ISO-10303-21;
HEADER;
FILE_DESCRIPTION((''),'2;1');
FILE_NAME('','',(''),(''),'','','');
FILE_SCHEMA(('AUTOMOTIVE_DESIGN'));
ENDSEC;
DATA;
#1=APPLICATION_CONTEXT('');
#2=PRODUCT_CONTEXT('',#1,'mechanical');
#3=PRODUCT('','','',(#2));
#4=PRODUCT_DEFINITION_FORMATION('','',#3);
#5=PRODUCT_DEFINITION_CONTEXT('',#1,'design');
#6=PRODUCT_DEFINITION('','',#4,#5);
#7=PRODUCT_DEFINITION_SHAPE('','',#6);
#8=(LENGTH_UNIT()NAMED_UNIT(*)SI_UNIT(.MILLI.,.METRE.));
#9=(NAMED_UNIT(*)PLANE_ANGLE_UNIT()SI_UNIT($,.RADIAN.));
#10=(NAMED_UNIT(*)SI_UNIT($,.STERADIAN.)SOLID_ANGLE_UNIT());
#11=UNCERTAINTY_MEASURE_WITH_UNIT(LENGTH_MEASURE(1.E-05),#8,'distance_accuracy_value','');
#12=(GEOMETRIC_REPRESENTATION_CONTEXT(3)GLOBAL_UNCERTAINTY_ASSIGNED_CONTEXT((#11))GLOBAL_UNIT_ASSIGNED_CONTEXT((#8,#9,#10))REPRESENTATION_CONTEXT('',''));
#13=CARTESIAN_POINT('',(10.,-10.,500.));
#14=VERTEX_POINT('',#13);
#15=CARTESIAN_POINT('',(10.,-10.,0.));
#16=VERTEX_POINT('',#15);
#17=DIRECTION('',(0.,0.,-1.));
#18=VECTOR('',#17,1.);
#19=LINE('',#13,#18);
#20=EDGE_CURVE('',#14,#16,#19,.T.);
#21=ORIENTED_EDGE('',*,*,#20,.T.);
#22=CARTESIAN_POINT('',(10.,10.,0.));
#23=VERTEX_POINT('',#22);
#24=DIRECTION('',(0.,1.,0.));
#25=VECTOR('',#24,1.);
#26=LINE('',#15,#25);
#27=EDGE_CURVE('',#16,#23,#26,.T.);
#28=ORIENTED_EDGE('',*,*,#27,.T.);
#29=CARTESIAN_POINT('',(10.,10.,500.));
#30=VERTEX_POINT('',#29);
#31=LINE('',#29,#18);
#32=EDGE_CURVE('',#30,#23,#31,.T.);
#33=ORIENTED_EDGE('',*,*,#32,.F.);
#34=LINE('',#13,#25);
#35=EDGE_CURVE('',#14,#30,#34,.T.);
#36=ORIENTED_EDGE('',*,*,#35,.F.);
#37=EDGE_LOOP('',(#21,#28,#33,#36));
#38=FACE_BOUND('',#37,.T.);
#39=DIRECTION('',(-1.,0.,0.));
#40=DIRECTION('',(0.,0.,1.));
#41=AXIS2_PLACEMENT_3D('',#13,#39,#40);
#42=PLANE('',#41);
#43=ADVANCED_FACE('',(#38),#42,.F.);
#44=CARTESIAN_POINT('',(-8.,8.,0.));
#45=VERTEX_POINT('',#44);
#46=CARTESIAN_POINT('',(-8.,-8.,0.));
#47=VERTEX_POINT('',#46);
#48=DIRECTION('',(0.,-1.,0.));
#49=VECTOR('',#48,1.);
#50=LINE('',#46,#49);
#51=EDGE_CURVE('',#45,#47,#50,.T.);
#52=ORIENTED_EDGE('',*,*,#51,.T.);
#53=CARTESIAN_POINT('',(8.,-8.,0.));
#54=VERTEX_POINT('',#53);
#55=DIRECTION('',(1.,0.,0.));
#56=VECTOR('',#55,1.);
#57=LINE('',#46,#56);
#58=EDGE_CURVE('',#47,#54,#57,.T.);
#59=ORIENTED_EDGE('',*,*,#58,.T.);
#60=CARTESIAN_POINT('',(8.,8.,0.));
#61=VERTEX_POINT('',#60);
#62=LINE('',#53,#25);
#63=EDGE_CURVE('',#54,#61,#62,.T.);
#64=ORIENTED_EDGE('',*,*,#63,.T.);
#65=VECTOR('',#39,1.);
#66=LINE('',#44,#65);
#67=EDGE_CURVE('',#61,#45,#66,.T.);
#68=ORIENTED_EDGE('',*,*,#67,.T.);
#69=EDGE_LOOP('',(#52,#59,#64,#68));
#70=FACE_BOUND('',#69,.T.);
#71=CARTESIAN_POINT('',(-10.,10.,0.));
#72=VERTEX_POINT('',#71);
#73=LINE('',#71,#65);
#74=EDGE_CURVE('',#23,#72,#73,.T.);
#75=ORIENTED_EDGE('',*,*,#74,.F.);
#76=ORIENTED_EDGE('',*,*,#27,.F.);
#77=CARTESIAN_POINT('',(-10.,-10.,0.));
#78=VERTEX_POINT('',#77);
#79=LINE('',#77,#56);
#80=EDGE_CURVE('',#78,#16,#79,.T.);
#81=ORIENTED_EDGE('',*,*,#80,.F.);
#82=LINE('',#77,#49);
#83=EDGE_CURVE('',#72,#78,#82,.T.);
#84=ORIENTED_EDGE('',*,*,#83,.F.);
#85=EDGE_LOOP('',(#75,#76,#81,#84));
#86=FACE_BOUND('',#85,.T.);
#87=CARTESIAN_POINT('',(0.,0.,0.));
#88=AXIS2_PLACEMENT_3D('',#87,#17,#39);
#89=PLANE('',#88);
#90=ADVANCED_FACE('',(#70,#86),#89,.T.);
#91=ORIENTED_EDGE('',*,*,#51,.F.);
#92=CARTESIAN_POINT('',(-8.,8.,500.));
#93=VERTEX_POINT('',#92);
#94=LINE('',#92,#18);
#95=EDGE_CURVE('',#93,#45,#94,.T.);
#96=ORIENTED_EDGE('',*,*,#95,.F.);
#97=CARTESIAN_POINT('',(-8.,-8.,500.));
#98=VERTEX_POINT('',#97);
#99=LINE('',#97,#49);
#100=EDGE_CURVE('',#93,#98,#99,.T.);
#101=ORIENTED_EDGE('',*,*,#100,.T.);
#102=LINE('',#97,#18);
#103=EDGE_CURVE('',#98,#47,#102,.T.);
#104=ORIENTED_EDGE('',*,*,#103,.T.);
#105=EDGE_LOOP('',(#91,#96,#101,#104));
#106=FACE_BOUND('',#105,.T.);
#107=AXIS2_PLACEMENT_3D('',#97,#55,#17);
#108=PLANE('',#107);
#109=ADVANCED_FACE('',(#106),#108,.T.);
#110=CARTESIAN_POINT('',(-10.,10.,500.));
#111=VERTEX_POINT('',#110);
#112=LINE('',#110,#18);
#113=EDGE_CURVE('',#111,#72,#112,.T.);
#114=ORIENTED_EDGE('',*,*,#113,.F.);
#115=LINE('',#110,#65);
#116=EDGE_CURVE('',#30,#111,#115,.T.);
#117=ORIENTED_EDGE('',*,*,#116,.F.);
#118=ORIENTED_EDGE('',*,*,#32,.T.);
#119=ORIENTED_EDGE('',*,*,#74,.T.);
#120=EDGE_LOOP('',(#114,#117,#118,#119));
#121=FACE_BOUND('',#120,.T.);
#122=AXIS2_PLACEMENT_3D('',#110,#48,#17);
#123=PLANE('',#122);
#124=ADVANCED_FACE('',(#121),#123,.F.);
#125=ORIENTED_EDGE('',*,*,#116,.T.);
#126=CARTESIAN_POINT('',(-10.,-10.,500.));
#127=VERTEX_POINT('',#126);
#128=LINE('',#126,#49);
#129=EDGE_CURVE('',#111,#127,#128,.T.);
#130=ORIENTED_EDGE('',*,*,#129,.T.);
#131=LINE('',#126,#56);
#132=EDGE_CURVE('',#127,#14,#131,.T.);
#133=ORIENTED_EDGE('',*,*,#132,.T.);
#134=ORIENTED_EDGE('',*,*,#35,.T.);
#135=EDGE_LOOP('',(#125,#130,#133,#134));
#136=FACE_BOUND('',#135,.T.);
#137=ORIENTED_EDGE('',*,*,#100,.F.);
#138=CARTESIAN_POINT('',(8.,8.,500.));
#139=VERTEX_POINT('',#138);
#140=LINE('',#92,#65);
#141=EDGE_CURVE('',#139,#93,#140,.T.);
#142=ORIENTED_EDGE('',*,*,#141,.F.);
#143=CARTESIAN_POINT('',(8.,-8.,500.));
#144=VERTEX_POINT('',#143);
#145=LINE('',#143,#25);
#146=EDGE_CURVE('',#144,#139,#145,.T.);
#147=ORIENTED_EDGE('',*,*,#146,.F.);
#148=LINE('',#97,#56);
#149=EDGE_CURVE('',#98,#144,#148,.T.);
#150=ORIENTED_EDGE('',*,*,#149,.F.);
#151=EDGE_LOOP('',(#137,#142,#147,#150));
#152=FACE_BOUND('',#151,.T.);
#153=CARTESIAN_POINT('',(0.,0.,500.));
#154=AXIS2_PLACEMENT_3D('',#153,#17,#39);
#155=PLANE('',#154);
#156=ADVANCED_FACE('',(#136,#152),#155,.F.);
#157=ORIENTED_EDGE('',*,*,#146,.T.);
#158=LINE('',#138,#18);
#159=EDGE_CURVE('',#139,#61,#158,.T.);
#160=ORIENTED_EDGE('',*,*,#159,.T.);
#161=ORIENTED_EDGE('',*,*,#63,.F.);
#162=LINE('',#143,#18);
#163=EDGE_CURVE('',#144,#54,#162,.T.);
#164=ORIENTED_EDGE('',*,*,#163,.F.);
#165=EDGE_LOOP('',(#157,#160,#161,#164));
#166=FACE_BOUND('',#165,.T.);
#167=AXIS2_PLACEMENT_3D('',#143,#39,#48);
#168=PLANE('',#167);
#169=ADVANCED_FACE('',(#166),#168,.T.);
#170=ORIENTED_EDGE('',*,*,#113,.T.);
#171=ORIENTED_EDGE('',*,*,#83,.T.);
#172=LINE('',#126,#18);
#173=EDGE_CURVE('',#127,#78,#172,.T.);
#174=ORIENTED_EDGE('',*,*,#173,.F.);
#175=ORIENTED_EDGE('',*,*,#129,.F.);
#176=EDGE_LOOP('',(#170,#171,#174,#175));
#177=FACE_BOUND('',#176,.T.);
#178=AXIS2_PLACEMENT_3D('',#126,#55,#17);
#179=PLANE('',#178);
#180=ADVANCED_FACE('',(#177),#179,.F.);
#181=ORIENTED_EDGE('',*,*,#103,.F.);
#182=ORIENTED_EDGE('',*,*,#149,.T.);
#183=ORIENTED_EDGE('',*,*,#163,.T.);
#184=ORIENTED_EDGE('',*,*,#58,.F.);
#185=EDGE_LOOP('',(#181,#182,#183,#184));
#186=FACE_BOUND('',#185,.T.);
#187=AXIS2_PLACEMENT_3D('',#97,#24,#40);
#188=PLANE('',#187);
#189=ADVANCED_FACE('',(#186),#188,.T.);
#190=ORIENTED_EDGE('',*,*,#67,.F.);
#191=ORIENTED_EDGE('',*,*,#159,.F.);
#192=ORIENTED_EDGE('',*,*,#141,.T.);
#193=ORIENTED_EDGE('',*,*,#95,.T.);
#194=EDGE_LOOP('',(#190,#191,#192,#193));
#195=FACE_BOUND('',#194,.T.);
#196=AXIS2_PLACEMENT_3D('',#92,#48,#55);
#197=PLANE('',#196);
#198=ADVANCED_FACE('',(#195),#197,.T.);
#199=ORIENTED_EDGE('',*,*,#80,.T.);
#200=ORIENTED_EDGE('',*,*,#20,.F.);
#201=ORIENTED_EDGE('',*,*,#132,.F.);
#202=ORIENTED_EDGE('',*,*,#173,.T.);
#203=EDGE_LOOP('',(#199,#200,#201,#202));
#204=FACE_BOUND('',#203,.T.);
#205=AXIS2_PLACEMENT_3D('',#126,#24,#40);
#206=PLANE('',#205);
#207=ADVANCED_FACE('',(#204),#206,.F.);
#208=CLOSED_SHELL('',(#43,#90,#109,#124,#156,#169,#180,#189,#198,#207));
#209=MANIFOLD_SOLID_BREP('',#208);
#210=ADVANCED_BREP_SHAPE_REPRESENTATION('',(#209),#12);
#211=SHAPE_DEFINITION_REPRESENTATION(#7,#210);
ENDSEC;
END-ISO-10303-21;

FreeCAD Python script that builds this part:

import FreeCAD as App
import Part
import Sketcher

V = App.Vector

doc = App.newDocument("Part")
body = doc.addObject("PartDesign::Body", "Body")

sketch1 = body.newObject("Sketcher::SketchObject", "Sketch")
sketch1.AttachmentSupport = (doc.getObject("XY_Plane"), [""])
sketch1.MapMode = "FlatFace"
sketch1.addGeometry(Part.LineSegment(V(-10, 10, 0), V(-10, -10, 0)), False)
sketch1.addGeometry(Part.LineSegment(V(-10, -10, 0), V(10, -10, 0)), False)
sketch1.addGeometry(Part.LineSegment(V(10, -10, 0), V(10, 10, 0)), False)
sketch1.addGeometry(Part.LineSegment(V(10, 10, 0), V(-10, 10, 0)), False)
sketch1.addGeometry(Part.LineSegment(V(8, -8, 0), V(-8, -8, 0)), False)
sketch1.addGeometry(Part.LineSegment(V(-8, -8, 0), V(-8, 8, 0)), False)
sketch1.addGeometry(Part.LineSegment(V(-8, 8, 0), V(8, 8, 0)), False)
sketch1.addGeometry(Part.LineSegment(V(8, 8, 0), V(8, -8, 0)), False)
sketch1.addConstraint(Sketcher.Constraint("Coincident", 0, 2, 1, 1))
sketch1.addConstraint(Sketcher.Constraint("Coincident", 1, 2, 2, 1))
sketch1.addConstraint(Sketcher.Constraint("Coincident", 2, 2, 3, 1))
sketch1.addConstraint(Sketcher.Constraint("Coincident", 3, 2, 0, 1))
sketch1.addConstraint(Sketcher.Constraint("Coincident", 4, 2, 5, 1))
sketch1.addConstraint(Sketcher.Constraint("Coincident", 5, 2, 6, 1))
sketch1.addConstraint(Sketcher.Constraint("Coincident", 6, 2, 7, 1))
sketch1.addConstraint(Sketcher.Constraint("Coincident", 7, 2, 4, 1))
sketch1.addConstraint(Sketcher.Constraint("Vertical", 0))
sketch1.addConstraint(Sketcher.Constraint("Horizontal", 1))
sketch1.addConstraint(Sketcher.Constraint("Vertical", 2))
sketch1.addConstraint(Sketcher.Constraint("Horizontal", 3))
sketch1.addConstraint(Sketcher.Constraint("Horizontal", 4))
sketch1.addConstraint(Sketcher.Constraint("Vertical", 5))
sketch1.addConstraint(Sketcher.Constraint("Horizontal", 6))
sketch1.addConstraint(Sketcher.Constraint("Vertical", 7))
sketch1.addConstraint(Sketcher.Constraint("Symmetric", 0, 2, 2, 2, -1, 1))
sketch1.addConstraint(Sketcher.Constraint("Symmetric", 4, 2, 6, 2, -1, 1))
sketch1.addConstraint(Sketcher.Constraint("Equal", 3, 0))
sketch1.addConstraint(Sketcher.Constraint("Equal", 6, 5))
sketch1.addConstraint(Sketcher.Constraint("DistanceX", 1, 1, 1, 2, 20.0))
sketch1.addConstraint(Sketcher.Constraint("DistanceX", 4, 2, 4, 1, 16.0))
pad1 = body.newObject("PartDesign::Pad", "Pad")
pad1.Profile = sketch1
pad1.Length = 500

doc.recompute()
